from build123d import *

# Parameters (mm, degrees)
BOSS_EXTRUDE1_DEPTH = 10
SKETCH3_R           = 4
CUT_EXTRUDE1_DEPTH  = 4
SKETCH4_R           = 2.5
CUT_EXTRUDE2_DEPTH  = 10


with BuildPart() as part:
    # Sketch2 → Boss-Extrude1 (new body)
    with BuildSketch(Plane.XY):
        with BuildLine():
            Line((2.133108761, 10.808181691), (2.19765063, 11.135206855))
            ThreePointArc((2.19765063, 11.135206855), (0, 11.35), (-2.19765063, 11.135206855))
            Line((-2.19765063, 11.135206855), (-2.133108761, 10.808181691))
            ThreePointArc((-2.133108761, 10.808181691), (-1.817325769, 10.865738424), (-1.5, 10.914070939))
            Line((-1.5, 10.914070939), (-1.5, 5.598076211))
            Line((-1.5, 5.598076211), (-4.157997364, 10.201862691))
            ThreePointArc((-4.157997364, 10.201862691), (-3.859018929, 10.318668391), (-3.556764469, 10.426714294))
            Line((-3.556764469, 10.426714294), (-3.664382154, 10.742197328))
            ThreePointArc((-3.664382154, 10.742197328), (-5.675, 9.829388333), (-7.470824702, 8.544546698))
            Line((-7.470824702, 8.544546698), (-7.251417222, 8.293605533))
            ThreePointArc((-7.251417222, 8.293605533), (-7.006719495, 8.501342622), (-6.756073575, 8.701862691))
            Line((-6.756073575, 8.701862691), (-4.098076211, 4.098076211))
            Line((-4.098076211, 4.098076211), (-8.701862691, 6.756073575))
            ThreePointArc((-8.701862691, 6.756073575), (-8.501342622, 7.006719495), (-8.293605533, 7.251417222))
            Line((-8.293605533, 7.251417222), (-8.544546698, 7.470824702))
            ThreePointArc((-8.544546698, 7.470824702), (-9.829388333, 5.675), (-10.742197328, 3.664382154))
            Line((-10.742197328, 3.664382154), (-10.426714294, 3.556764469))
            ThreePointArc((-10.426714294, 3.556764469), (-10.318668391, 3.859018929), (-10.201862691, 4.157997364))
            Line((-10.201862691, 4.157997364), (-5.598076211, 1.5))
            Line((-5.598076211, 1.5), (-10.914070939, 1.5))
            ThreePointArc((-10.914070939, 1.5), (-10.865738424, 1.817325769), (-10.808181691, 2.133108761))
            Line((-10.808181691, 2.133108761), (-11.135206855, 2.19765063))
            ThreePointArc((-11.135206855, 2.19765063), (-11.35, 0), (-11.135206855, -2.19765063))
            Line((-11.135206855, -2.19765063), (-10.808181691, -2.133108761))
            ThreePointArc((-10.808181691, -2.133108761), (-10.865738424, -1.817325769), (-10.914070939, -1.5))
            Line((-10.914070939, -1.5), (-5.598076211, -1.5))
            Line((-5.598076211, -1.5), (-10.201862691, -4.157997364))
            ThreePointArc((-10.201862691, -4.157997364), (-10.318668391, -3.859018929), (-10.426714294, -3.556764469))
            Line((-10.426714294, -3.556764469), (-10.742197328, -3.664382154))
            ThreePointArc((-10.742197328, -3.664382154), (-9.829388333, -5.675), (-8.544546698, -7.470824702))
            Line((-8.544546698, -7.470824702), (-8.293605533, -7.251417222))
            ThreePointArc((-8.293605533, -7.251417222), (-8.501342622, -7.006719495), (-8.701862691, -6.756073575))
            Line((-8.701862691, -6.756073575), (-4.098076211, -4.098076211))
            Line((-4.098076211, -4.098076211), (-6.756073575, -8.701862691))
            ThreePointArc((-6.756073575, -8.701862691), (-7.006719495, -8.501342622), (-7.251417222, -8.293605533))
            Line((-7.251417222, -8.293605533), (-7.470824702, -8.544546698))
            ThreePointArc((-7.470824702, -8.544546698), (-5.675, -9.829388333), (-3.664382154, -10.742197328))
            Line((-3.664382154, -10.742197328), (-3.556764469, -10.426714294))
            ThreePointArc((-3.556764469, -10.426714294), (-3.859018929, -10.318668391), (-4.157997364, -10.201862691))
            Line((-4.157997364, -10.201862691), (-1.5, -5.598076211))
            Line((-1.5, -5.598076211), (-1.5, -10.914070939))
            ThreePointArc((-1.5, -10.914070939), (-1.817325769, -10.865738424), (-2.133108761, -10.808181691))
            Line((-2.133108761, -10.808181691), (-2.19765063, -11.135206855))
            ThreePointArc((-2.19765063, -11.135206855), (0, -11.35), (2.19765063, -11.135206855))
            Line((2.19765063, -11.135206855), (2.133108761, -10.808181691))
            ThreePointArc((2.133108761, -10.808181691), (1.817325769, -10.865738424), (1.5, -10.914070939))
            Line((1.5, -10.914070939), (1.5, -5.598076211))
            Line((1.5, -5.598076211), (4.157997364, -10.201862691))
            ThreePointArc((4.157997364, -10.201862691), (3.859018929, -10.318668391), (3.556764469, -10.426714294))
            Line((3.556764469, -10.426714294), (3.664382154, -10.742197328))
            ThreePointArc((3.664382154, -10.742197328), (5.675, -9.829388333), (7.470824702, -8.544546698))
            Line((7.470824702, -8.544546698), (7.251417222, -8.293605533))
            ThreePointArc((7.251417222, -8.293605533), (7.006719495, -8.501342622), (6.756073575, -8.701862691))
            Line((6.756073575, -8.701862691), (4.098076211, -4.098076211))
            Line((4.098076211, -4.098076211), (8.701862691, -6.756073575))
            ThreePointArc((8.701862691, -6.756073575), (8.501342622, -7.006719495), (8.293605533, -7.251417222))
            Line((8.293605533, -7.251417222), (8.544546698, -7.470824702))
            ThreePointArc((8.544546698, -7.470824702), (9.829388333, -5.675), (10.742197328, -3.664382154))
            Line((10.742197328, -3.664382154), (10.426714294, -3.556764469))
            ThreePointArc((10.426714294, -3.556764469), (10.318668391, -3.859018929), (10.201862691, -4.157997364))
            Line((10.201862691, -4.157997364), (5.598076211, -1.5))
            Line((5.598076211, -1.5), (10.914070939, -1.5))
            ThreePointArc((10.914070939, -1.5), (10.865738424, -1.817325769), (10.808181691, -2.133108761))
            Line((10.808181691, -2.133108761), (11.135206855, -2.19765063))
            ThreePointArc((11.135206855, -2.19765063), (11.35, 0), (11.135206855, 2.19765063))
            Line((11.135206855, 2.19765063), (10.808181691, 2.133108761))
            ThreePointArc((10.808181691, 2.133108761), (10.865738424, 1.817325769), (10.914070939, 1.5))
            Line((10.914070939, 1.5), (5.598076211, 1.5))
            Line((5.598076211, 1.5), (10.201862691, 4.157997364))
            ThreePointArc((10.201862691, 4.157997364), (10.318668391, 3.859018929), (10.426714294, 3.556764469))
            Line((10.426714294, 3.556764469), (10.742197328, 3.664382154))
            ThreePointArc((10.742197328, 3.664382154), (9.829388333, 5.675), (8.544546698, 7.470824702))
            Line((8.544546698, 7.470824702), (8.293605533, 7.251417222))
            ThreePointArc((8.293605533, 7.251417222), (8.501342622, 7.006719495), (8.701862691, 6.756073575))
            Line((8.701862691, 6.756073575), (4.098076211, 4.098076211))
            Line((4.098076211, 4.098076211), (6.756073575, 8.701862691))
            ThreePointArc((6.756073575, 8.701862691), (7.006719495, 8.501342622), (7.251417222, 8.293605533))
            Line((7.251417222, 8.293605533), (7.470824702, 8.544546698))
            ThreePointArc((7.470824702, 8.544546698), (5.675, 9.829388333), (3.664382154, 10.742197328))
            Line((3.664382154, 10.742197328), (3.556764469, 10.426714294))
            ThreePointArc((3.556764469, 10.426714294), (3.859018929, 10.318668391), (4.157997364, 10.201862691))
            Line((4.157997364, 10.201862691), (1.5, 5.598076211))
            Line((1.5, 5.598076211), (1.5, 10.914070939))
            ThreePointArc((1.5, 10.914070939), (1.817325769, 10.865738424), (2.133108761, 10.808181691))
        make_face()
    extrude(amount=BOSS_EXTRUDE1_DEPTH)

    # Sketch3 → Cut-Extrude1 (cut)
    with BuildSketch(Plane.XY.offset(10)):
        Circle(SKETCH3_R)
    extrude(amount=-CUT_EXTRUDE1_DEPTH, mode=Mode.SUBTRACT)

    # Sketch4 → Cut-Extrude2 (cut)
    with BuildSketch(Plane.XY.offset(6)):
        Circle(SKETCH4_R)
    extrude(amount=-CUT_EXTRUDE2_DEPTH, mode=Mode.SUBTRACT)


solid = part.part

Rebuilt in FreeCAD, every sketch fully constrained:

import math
import FreeCAD as App
import Part
import Sketcher

V = App.Vector
Q = App.Units.Quantity

doc = App.newDocument("Part")
params = doc.addObject("Spreadsheet::Sheet", "Params")
for row, (alias, value) in enumerate([
    ("sketch1_radius", "11.35 mm"),
    ("pad1_length", "10 mm"),
    ("sketch2_diameter", "8 mm"),
    ("pocket1_length", "4 mm"),
    ("sketch3_diameter", "5 mm"),
    ("pocket2_length", "10 mm"),
], start=1):
    params.set(f"A{row}", alias)
    params.set(f"B{row}", "=" + value)
    params.setAlias(f"B{row}", alias)

body = doc.addObject("PartDesign::Body", "Body")

# Sketch on XY plane
sketch1 = doc.addObject("Sketcher::SketchObject", "Sketch")
body.addObject(sketch1)
sketch1.AttachmentSupport = (doc.XY_Plane, [""])
sketch1.MapMode = "FlatFace"
sketch1.addGeometry(Part.LineSegment(V(2.133109, 10.808182, 0), V(2.197651, 11.135207, 0)), False)
sketch1.addGeometry(Part.ArcOfCircle(Part.Circle(V(0, 0, 0), V(0, 0, 1), 11.35), math.radians(78.835553), math.radians(101.164447)), False)
sketch1.addGeometry(Part.LineSegment(V(-2.197651, 11.135207, 0), V(-2.133109, 10.808182, 0)), False)
sketch1.addGeometry(Part.ArcOfCircle(Part.Circle(V(0, -0.000001, 0), V(0, 0, 1), 11.016667), math.radians(97.825549), math.radians(101.164446)), False)
sketch1.addGeometry(Part.LineSegment(V(-1.5, 10.914071, 0), V(-1.5, 5.598076, 0)), False)
sketch1.addGeometry(Part.LineSegment(V(-1.5, 5.598076, 0), V(-4.157997, 10.201863, 0)), False)
sketch1.addGeometry(Part.ArcOfCircle(Part.Circle(V(0, 0.000001, 0), V(0, 0, 1), 11.016666), math.radians(108.835553), math.radians(112.174452)), False)
sketch1.addGeometry(Part.LineSegment(V(-3.556764, 10.426714, 0), V(-3.664382, 10.742197, 0)), False)
sketch1.addGeometry(Part.ArcOfCircle(Part.Circle(V(0, 0, 0), V(0, 0, 1), 11.35), math.radians(108.835554), math.radians(131.164447)), False)
sketch1.addGeometry(Part.LineSegment(V(-7.470825, 8.544547, 0), V(-7.251417, 8.293606, 0)), False)
sketch1.addGeometry(Part.ArcOfCircle(Part.Circle(V(0, 0, 0), V(0, 0, 1), 11.016666), math.radians(127.825548), math.radians(131.164446)), False)
sketch1.addGeometry(Part.LineSegment(V(-6.756074, 8.701863, 0), V(-4.098076, 4.098076, 0)), False)
sketch1.addGeometry(Part.LineSegment(V(-4.098076, 4.098076, 0), V(-8.701863, 6.756074, 0)), False)
sketch1.addGeometry(Part.ArcOfCircle(Part.Circle(V(0, 0, 0), V(0, 0, 1), 11.016666), math.radians(138.835554), math.radians(142.174452)), False)
sketch1.addGeometry(Part.LineSegment(V(-8.293606, 7.251417, 0), V(-8.544547, 7.470825, 0)), False)
sketch1.addGeometry(Part.ArcOfCircle(Part.Circle(V(0, 0, 0), V(0, 0, 1), 11.35), math.radians(138.835553), math.radians(161.164446)), False)
sketch1.addGeometry(Part.LineSegment(V(-10.742197, 3.664382, 0), V(-10.426714, 3.556764, 0)), False)
sketch1.addGeometry(Part.ArcOfCircle(Part.Circle(V(-0.000001, 0, 0), V(0, 0, 1), 11.016666), math.radians(157.825548), math.radians(161.164447)), False)
sketch1.addGeometry(Part.LineSegment(V(-10.201863, 4.157997, 0), V(-5.598076, 1.5, 0)), False)
sketch1.addGeometry(Part.LineSegment(V(-5.598076, 1.5, 0), V(-10.914071, 1.5, 0)), False)
sketch1.addGeometry(Part.ArcOfCircle(Part.Circle(V(0.000001, 0, 0), V(0, 0, 1), 11.016667), math.radians(168.835554), math.radians(172.174451)), False)
sketch1.addGeometry(Part.LineSegment(V(-10.808182, 2.133109, 0), V(-11.135207, 2.197651, 0)), False)
sketch1.addGeometry(Part.ArcOfCircle(Part.Circle(V(0, 0, 0), V(0, 0, 1), 11.35), math.radians(168.835553), math.radians(191.164447)), False)
sketch1.addGeometry(Part.LineSegment(V(-11.135207, -2.197651, 0), V(-10.808182, -2.133109, 0)), False)
sketch1.addGeometry(Part.ArcOfCircle(Part.Circle(V(0.000001, 0, 0), V(0, 0, 1), 11.016667), math.radians(-172.174451), math.radians(-168.835554)), False)
sketch1.addGeometry(Part.LineSegment(V(-10.914071, -1.5, 0), V(-5.598076, -1.5, 0)), False)
sketch1.addGeometry(Part.LineSegment(V(-5.598076, -1.5, 0), V(-10.201863, -4.157997, 0)), False)
sketch1.addGeometry(Part.ArcOfCircle(Part.Circle(V(-0.000001, 0, 0), V(0, 0, 1), 11.016666), math.radians(-161.164447), math.radians(-157.825548)), False)
sketch1.addGeometry(Part.LineSegment(V(-10.426714, -3.556764, 0), V(-10.742197, -3.664382, 0)), False)
sketch1.addGeometry(Part.ArcOfCircle(Part.Circle(V(0, 0, 0), V(0, 0, 1), 11.35), math.radians(-161.164446), math.radians(-138.835553)), False)
sketch1.addGeometry(Part.LineSegment(V(-8.544547, -7.470825, 0), V(-8.293606, -7.251417, 0)), False)
sketch1.addGeometry(Part.ArcOfCircle(Part.Circle(V(0, 0, 0), V(0, 0, 1), 11.016666), math.radians(-142.174452), math.radians(-138.835554)), False)
sketch1.addGeometry(Part.LineSegment(V(-8.701863, -6.756074, 0), V(-4.098076, -4.098076, 0)), False)
sketch1.addGeometry(Part.LineSegment(V(-4.098076, -4.098076, 0), V(-6.756074, -8.701863, 0)), False)
sketch1.addGeometry(Part.ArcOfCircle(Part.Circle(V(0, 0, 0), V(0, 0, 1), 11.016666), math.radians(-131.164446), math.radians(-127.825548)), False)
sketch1.addGeometry(Part.LineSegment(V(-7.251417, -8.293606, 0), V(-7.470825, -8.544547, 0)), False)
sketch1.addGeometry(Part.ArcOfCircle(Part.Circle(V(0, 0, 0), V(0, 0, 1), 11.35), math.radians(-131.164447), math.radians(-108.835554)), False)
sketch1.addGeometry(Part.LineSegment(V(-3.664382, -10.742197, 0), V(-3.556764, -10.426714, 0)), False)
sketch1.addGeometry(Part.ArcOfCircle(Part.Circle(V(0, -0.000001, 0), V(0, 0, 1), 11.016666), math.radians(-112.174452), math.radians(-108.835553)), False)
sketch1.addGeometry(Part.LineSegment(V(-4.157997, -10.201863, 0), V(-1.5, -5.598076, 0)), False)
sketch1.addGeometry(Part.LineSegment(V(-1.5, -5.598076, 0), V(-1.5, -10.914071, 0)), False)
sketch1.addGeometry(Part.ArcOfCircle(Part.Circle(V(0, 0.000001, 0), V(0, 0, 1), 11.016667), math.radians(-101.164446), math.radians(-97.825549)), False)
sketch1.addGeometry(Part.LineSegment(V(-2.133109, -10.808182, 0), V(-2.197651, -11.135207, 0)), False)
sketch1.addGeometry(Part.ArcOfCircle(Part.Circle(V(0, 0, 0), V(0, 0, 1), 11.35), math.radians(-101.164447), math.radians(-78.835553)), False)
sketch1.addGeometry(Part.LineSegment(V(2.197651, -11.135207, 0), V(2.133109, -10.808182, 0)), False)
sketch1.addGeometry(Part.ArcOfCircle(Part.Circle(V(0, 0.000001, 0), V(0, 0, 1), 11.016667), math.radians(-82.174451), math.radians(-78.835554)), False)
sketch1.addGeometry(Part.LineSegment(V(1.5, -10.914071, 0), V(1.5, -5.598076, 0)), False)
sketch1.addGeometry(Part.LineSegment(V(1.5, -5.598076, 0), V(4.157997, -10.201863, 0)), False)
sketch1.addGeometry(Part.ArcOfCircle(Part.Circle(V(0, -0.000001, 0), V(0, 0, 1), 11.016666), math.radians(-71.164447), math.radians(-67.825548)), False)
sketch1.addGeometry(Part.LineSegment(V(3.556764, -10.426714, 0), V(3.664382, -10.742197, 0)), False)
sketch1.addGeometry(Part.ArcOfCircle(Part.Circle(V(0, 0, 0), V(0, 0, 1), 11.35), math.radians(-71.164446), math.radians(-48.835553)), False)
sketch1.addGeometry(Part.LineSegment(V(7.470825, -8.544547, 0), V(7.251417, -8.293606, 0)), False)
sketch1.addGeometry(Part.ArcOfCircle(Part.Circle(V(0, 0, 0), V(0, 0, 1), 11.016666), math.radians(-52.174452), math.radians(-48.835554)), False)
sketch1.addGeometry(Part.LineSegment(V(6.756074, -8.701863, 0), V(4.098076, -4.098076, 0)), False)
sketch1.addGeometry(Part.LineSegment(V(4.098076, -4.098076, 0), V(8.701863, -6.756074, 0)), False)
sketch1.addGeometry(Part.ArcOfCircle(Part.Circle(V(0, 0, 0), V(0, 0, 1), 11.016666), math.radians(-41.164446), math.radians(-37.825548)), False)
sketch1.addGeometry(Part.LineSegment(V(8.293606, -7.251417, 0), V(8.544547, -7.470825, 0)), False)
sketch1.addGeometry(Part.ArcOfCircle(Part.Circle(V(0, 0, 0), V(0, 0, 1), 11.35), math.radians(-41.164447), math.radians(-18.835554)), False)
sketch1.addGeometry(Part.LineSegment(V(10.742197, -3.664382, 0), V(10.426714, -3.556764, 0)), False)
sketch1.addGeometry(Part.ArcOfCircle(Part.Circle(V(0.000001, 0, 0), V(0, 0, 1), 11.016666), math.radians(-22.174452), math.radians(-18.835553)), False)
sketch1.addGeometry(Part.LineSegment(V(10.201863, -4.157997, 0), V(5.598076, -1.5, 0)), False)
sketch1.addGeometry(Part.LineSegment(V(5.598076, -1.5, 0), V(10.914071, -1.5, 0)), False)
sketch1.addGeometry(Part.ArcOfCircle(Part.Circle(V(-0.000001, 0, 0), V(0, 0, 1), 11.016667), math.radians(-11.164446), math.radians(-7.825549)), False)
sketch1.addGeometry(Part.LineSegment(V(10.808182, -2.133109, 0), V(11.135207, -2.197651, 0)), False)
sketch1.addGeometry(Part.ArcOfCircle(Part.Circle(V(0, 0, 0), V(0, 0, 1), 11.35), math.radians(-11.164447), math.radians(11.164447)), False)
sketch1.addGeometry(Part.LineSegment(V(11.135207, 2.197651, 0), V(10.808182, 2.133109, 0)), False)
sketch1.addGeometry(Part.ArcOfCircle(Part.Circle(V(-0.000001, 0, 0), V(0, 0, 1), 11.016667), math.radians(7.825549), math.radians(11.164446)), False)
sketch1.addGeometry(Part.LineSegment(V(10.914071, 1.5, 0), V(5.598076, 1.5, 0)), False)
sketch1.addGeometry(Part.LineSegment(V(5.598076, 1.5, 0), V(10.201863, 4.157997, 0)), False)
sketch1.addGeometry(Part.ArcOfCircle(Part.Circle(V(0.000001, 0, 0), V(0, 0, 1), 11.016666), math.radians(18.835553), math.radians(22.174452)), False)
sketch1.addGeometry(Part.LineSegment(V(10.426714, 3.556764, 0), V(10.742197, 3.664382, 0)), False)
sketch1.addGeometry(Part.ArcOfCircle(Part.Circle(V(0, 0, 0), V(0, 0, 1), 11.35), math.radians(18.835554), math.radians(41.164447)), False)
sketch1.addGeometry(Part.LineSegment(V(8.544547, 7.470825, 0), V(8.293606, 7.251417, 0)), False)
sketch1.addGeometry(Part.ArcOfCircle(Part.Circle(V(0, 0, 0), V(0, 0, 1), 11.016666), math.radians(37.825548), math.radians(41.164446)), False)
sketch1.addGeometry(Part.LineSegment(V(8.701863, 6.756074, 0), V(4.098076, 4.098076, 0)), False)
sketch1.addGeometry(Part.LineSegment(V(4.098076, 4.098076, 0), V(6.756074, 8.701863, 0)), False)
sketch1.addGeometry(Part.ArcOfCircle(Part.Circle(V(0, 0, 0), V(0, 0, 1), 11.016666), math.radians(48.835554), math.radians(52.174452)), False)
sketch1.addGeometry(Part.LineSegment(V(7.251417, 8.293606, 0), V(7.470825, 8.544547, 0)), False)
sketch1.addGeometry(Part.ArcOfCircle(Part.Circle(V(0, 0, 0), V(0, 0, 1), 11.35), math.radians(48.835553), math.radians(71.164446)), False)
sketch1.addGeometry(Part.LineSegment(V(3.664382, 10.742197, 0), V(3.556764, 10.426714, 0)), False)
sketch1.addGeometry(Part.ArcOfCircle(Part.Circle(V(0, 0.000001, 0), V(0, 0, 1), 11.016666), math.radians(67.825548), math.radians(71.164447)), False)
sketch1.addGeometry(Part.LineSegment(V(4.157997, 10.201863, 0), V(1.5, 5.598076, 0)), False)
sketch1.addGeometry(Part.LineSegment(V(1.5, 5.598076, 0), V(1.5, 10.914071, 0)), False)
sketch1.addGeometry(Part.ArcOfCircle(Part.Circle(V(0, -0.000001, 0), V(0, 0, 1), 11.016667), math.radians(78.835554), math.radians(82.174451)), False)
sketch1.addConstraint(Sketcher.Constraint("Coincident", 0, 2, 1, 1))
sketch1.addConstraint(Sketcher.Constraint("Coincident", 1, 2, 2, 1))
sketch1.addConstraint(Sketcher.Constraint("Coincident", 2, 2, 3, 2))
sketch1.addConstraint(Sketcher.Constraint("Coincident", 3, 1, 4, 1))
sketch1.addConstraint(Sketcher.Constraint("Coincident", 4, 2, 5, 1))
sketch1.addConstraint(Sketcher.Constraint("Coincident", 5, 2, 6, 2))
sketch1.addConstraint(Sketcher.Constraint("Coincident", 6, 1, 7, 1))
sketch1.addConstraint(Sketcher.Constraint("Coincident", 7, 2, 8, 1))
sketch1.addConstraint(Sketcher.Constraint("Coincident", 8, 2, 9, 1))
sketch1.addConstraint(Sketcher.Constraint("Coincident", 9, 2, 10, 2))
sketch1.addConstraint(Sketcher.Constraint("Coincident", 10, 1, 11, 1))
sketch1.addConstraint(Sketcher.Constraint("Coincident", 11, 2, 12, 1))
sketch1.addConstraint(Sketcher.Constraint("Coincident", 12, 2, 13, 2))
sketch1.addConstraint(Sketcher.Constraint("Coincident", 13, 1, 14, 1))
sketch1.addConstraint(Sketcher.Constraint("Coincident", 14, 2, 15, 1))
sketch1.addConstraint(Sketcher.Constraint("Coincident", 15, 2, 16, 1))
sketch1.addConstraint(Sketcher.Constraint("Coincident", 16, 2, 17, 2))
sketch1.addConstraint(Sketcher.Constraint("Coincident", 17, 1, 18, 1))
sketch1.addConstraint(Sketcher.Constraint("Coincident", 18, 2, 19, 1))
sketch1.addConstraint(Sketcher.Constraint("Coincident", 19, 2, 20, 2))
sketch1.addConstraint(Sketcher.Constraint("Coincident", 20, 1, 21, 1))
sketch1.addConstraint(Sketcher.Constraint("Coincident", 21, 2, 22, 1))
sketch1.addConstraint(Sketcher.Constraint("Coincident", 22, 2, 23, 1))
sketch1.addConstraint(Sketcher.Constraint("Coincident", 23, 2, 24, 2))
sketch1.addConstraint(Sketcher.Constraint("Coincident", 24, 1, 25, 1))
sketch1.addConstraint(Sketcher.Constraint("Coincident", 25, 2, 26, 1))
sketch1.addConstraint(Sketcher.Constraint("Coincident", 26, 2, 27, 2))
sketch1.addConstraint(Sketcher.Constraint("Coincident", 27, 1, 28, 1))
sketch1.addConstraint(Sketcher.Constraint("Coincident", 28, 2, 29, 1))
sketch1.addConstraint(Sketcher.Constraint("Coincident", 29, 2, 30, 1))
sketch1.addConstraint(Sketcher.Constraint("Coincident", 30, 2, 31, 2))
sketch1.addConstraint(Sketcher.Constraint("Coincident", 31, 1, 32, 1))
sketch1.addConstraint(Sketcher.Constraint("Coincident", 32, 2, 33, 1))
sketch1.addConstraint(Sketcher.Constraint("Coincident", 33, 2, 34, 2))
sketch1.addConstraint(Sketcher.Constraint("Coincident", 34, 1, 35, 1))
sketch1.addConstraint(Sketcher.Constraint("Coincident", 35, 2, 36, 1))
sketch1.addConstraint(Sketcher.Constraint("Coincident", 36, 2, 37, 1))
sketch1.addConstraint(Sketcher.Constraint("Coincident", 37, 2, 38, 2))
sketch1.addConstraint(Sketcher.Constraint("Coincident", 38, 1, 39, 1))
sketch1.addConstraint(Sketcher.Constraint("Coincident", 39, 2, 40, 1))
sketch1.addConstraint(Sketcher.Constraint("Coincident", 40, 2, 41, 2))
sketch1.addConstraint(Sketcher.Constraint("Coincident", 41, 1, 42, 1))
sketch1.addConstraint(Sketcher.Constraint("Coincident", 42, 2, 43, 1))
sketch1.addConstraint(Sketcher.Constraint("Coincident", 43, 2, 44, 1))
sketch1.addConstraint(Sketcher.Constraint("Coincident", 44, 2, 45, 2))
sketch1.addConstraint(Sketcher.Constraint("Coincident", 45, 1, 46, 1))
sketch1.addConstraint(Sketcher.Constraint("Coincident", 46, 2, 47, 1))
sketch1.addConstraint(Sketcher.Constraint("Coincident", 47, 2, 48, 2))
sketch1.addConstraint(Sketcher.Constraint("Coincident", 48, 1, 49, 1))
sketch1.addConstraint(Sketcher.Constraint("Coincident", 49, 2, 50, 1))
sketch1.addConstraint(Sketcher.Constraint("Coincident", 50, 2, 51, 1))
sketch1.addConstraint(Sketcher.Constraint("Coincident", 51, 2, 52, 2))
sketch1.addConstraint(Sketcher.Constraint("Coincident", 52, 1, 53, 1))
sketch1.addConstraint(Sketcher.Constraint("Coincident", 53, 2, 54, 1))
sketch1.addConstraint(Sketcher.Constraint("Coincident", 54, 2, 55, 2))
sketch1.addConstraint(Sketcher.Constraint("Coincident", 55, 1, 56, 1))
sketch1.addConstraint(Sketcher.Constraint("Coincident", 56, 2, 57, 1))
sketch1.addConstraint(Sketcher.Constraint("Coincident", 57, 2, 58, 1))
sketch1.addConstraint(Sketcher.Constraint("Coincident", 58, 2, 59, 2))
sketch1.addConstraint(Sketcher.Constraint("Coincident", 59, 1, 60, 1))
sketch1.addConstraint(Sketcher.Constraint("Coincident", 60, 2, 61, 1))
sketch1.addConstraint(Sketcher.Constraint("Coincident", 61, 2, 62, 2))
sketch1.addConstraint(Sketcher.Constraint("Coincident", 62, 1, 63, 1))
sketch1.addConstraint(Sketcher.Constraint("Coincident", 63, 2, 64, 1))
sketch1.addConstraint(Sketcher.Constraint("Coincident", 64, 2, 65, 1))
sketch1.addConstraint(Sketcher.Constraint("Coincident", 65, 2, 66, 2))
sketch1.addConstraint(Sketcher.Constraint("Coincident", 66, 1, 67, 1))
sketch1.addConstraint(Sketcher.Constraint("Coincident", 67, 2, 68, 1))
sketch1.addConstraint(Sketcher.Constraint("Coincident", 68, 2, 69, 2))
sketch1.addConstraint(Sketcher.Constraint("Coincident", 69, 1, 70, 1))
sketch1.addConstraint(Sketcher.Constraint("Coincident", 70, 2, 71, 1))
sketch1.addConstraint(Sketcher.Constraint("Coincident", 71, 2, 72, 1))
sketch1.addConstraint(Sketcher.Constraint("Coincident", 72, 2, 73, 2))
sketch1.addConstraint(Sketcher.Constraint("Coincident", 73, 1, 74, 1))
sketch1.addConstraint(Sketcher.Constraint("Coincident", 74, 2, 75, 1))
sketch1.addConstraint(Sketcher.Constraint("Coincident", 75, 2, 76, 2))
sketch1.addConstraint(Sketcher.Constraint("Coincident", 76, 1, 77, 1))
sketch1.addConstraint(Sketcher.Constraint("Coincident", 77, 2, 78, 1))
sketch1.addConstraint(Sketcher.Constraint("Coincident", 78, 2, 79, 1))
sketch1.addConstraint(Sketcher.Constraint("Coincident", 79, 2, 80, 2))
sketch1.addConstraint(Sketcher.Constraint("Coincident", 80, 1, 81, 1))
sketch1.addConstraint(Sketcher.Constraint("Coincident", 81, 2, 82, 1))
sketch1.addConstraint(Sketcher.Constraint("Coincident", 82, 2, 83, 2))
sketch1.addConstraint(Sketcher.Constraint("Coincident", 83, 1, 0, 1))
sketch1.addConstraint(Sketcher.Constraint("Vertical", 4))
sketch1.addConstraint(Sketcher.Constraint("Horizontal", 19))
sketch1.addConstraint(Sketcher.Constraint("Horizontal", 25))
sketch1.addConstraint(Sketcher.Constraint("Vertical", 40))
sketch1.addConstraint(Sketcher.Constraint("Vertical", 46))
sketch1.addConstraint(Sketcher.Constraint("Horizontal", 61))
sketch1.addConstraint(Sketcher.Constraint("Horizontal", 67))
sketch1.addConstraint(Sketcher.Constraint("Vertical", 82))
sketch1.addConstraint(Sketcher.Constraint("Coincident", 1, 3, -1, 1))
sketch1.addConstraint(Sketcher.Constraint("Coincident", 3, 3, -1, 1))
sketch1.addConstraint(Sketcher.Constraint("Coincident", 6, 3, -1, 1))
sketch1.addConstraint(Sketcher.Constraint("Coincident", 8, 3, -1, 1))
sketch1.addConstraint(Sketcher.Constraint("Coincident", 10, 3, -1, 1))
sketch1.addConstraint(Sketcher.Constraint("Coincident", 13, 3, -1, 1))
sketch1.addConstraint(Sketcher.Constraint("Coincident", 15, 3, -1, 1))
sketch1.addConstraint(Sketcher.Constraint("Coincident", 17, 3, -1, 1))
sketch1.addConstraint(Sketcher.Constraint("Coincident", 20, 3, -1, 1))
sketch1.addConstraint(Sketcher.Constraint("Coincident", 22, 3, -1, 1))
sketch1.addConstraint(Sketcher.Constraint("Coincident", 24, 3, -1, 1))
sketch1.addConstraint(Sketcher.Constraint("Coincident", 27, 3, -1, 1))
sketch1.addConstraint(Sketcher.Constraint("Coincident", 29, 3, -1, 1))
sketch1.addConstraint(Sketcher.Constraint("Coincident", 31, 3, -1, 1))
sketch1.addConstraint(Sketcher.Constraint("Coincident", 34, 3, -1, 1))
sketch1.addConstraint(Sketcher.Constraint("Coincident", 36, 3, -1, 1))
sketch1.addConstraint(Sketcher.Constraint("Coincident", 38, 3, -1, 1))
sketch1.addConstraint(Sketcher.Constraint("Coincident", 41, 3, -1, 1))
sketch1.addConstraint(Sketcher.Constraint("Coincident", 43, 3, -1, 1))
sketch1.addConstraint(Sketcher.Constraint("Coincident", 45, 3, -1, 1))
sketch1.addConstraint(Sketcher.Constraint("Coincident", 48, 3, -1, 1))
sketch1.addConstraint(Sketcher.Constraint("Coincident", 50, 3, -1, 1))
sketch1.addConstraint(Sketcher.Constraint("Coincident", 52, 3, -1, 1))
sketch1.addConstraint(Sketcher.Constraint("Coincident", 55, 3, -1, 1))
sketch1.addConstraint(Sketcher.Constraint("Coincident", 57, 3, -1, 1))
sketch1.addConstraint(Sketcher.Constraint("Coincident", 59, 3, -1, 1))
sketch1.addConstraint(Sketcher.Constraint("Coincident", 62, 3, -1, 1))
sketch1.addConstraint(Sketcher.Constraint("Coincident", 64, 3, -1, 1))
sketch1.addConstraint(Sketcher.Constraint("Coincident", 66, 3, -1, 1))
sketch1.addConstraint(Sketcher.Constraint("Coincident", 69, 3, -1, 1))
sketch1.addConstraint(Sketcher.Constraint("Coincident", 71, 3, -1, 1))
sketch1.addConstraint(Sketcher.Constraint("Coincident", 73, 3, -1, 1))
sketch1.addConstraint(Sketcher.Constraint("Coincident", 76, 3, -1, 1))
sketch1.addConstraint(Sketcher.Constraint("Coincident", 78, 3, -1, 1))
sketch1.addConstraint(Sketcher.Constraint("Coincident", 80, 3, -1, 1))
sketch1.addConstraint(Sketcher.Constraint("Coincident", 83, 3, -1, 1))
sketch1.addConstraint(Sketcher.Constraint("Equal", 3, 6))
sketch1.addConstraint(Sketcher.Constraint("Equal", 1, 8))
sketch1.addConstraint(Sketcher.Constraint("Equal", 6, 10))
sketch1.addConstraint(Sketcher.Constraint("Equal", 10, 13))
sketch1.addConstraint(Sketcher.Constraint("Equal", 8, 15))
sketch1.addConstraint(Sketcher.Constraint("Equal", 13, 17))
sketch1.addConstraint(Sketcher.Constraint("Equal", 17, 20))
sketch1.addConstraint(Sketcher.Constraint("Equal", 15, 22))
sketch1.addConstraint(Sketcher.Constraint("Equal", 20, 24))
sketch1.addConstraint(Sketcher.Constraint("Equal", 24, 27))
sketch1.addConstraint(Sketcher.Constraint("Equal", 22, 29))
sketch1.addConstraint(Sketcher.Constraint("Equal", 27, 31))
sketch1.addConstraint(Sketcher.Constraint("Equal", 31, 34))
sketch1.addConstraint(Sketcher.Constraint("Equal", 29, 36))
sketch1.addConstraint(Sketcher.Constraint("Equal", 34, 38))
sketch1.addConstraint(Sketcher.Constraint("Equal", 38, 41))
sketch1.addConstraint(Sketcher.Constraint("Equal", 36, 43))
sketch1.addConstraint(Sketcher.Constraint("Equal", 41, 45))
sketch1.addConstraint(Sketcher.Constraint("Equal", 45, 48))
sketch1.addConstraint(Sketcher.Constraint("Equal", 43, 50))
sketch1.addConstraint(Sketcher.Constraint("Equal", 48, 52))
sketch1.addConstraint(Sketcher.Constraint("Equal", 52, 55))
sketch1.addConstraint(Sketcher.Constraint("Equal", 50, 57))
sketch1.addConstraint(Sketcher.Constraint("Equal", 55, 59))
sketch1.addConstraint(Sketcher.Constraint("Equal", 59, 62))
sketch1.addConstraint(Sketcher.Constraint("Equal", 57, 64))
sketch1.addConstraint(Sketcher.Constraint("Equal", 62, 66))
sketch1.addConstraint(Sketcher.Constraint("Equal", 66, 69))
sketch1.addConstraint(Sketcher.Constraint("Equal", 64, 71))
sketch1.addConstraint(Sketcher.Constraint("Equal", 69, 73))
sketch1.addConstraint(Sketcher.Constraint("Equal", 73, 76))
sketch1.addConstraint(Sketcher.Constraint("Equal", 71, 78))
sketch1.addConstraint(Sketcher.Constraint("Equal", 76, 80))
sketch1.addConstraint(Sketcher.Constraint("Equal", 80, 83))
sketch1.addConstraint(Sketcher.Constraint("Symmetric", 4, 2, 46, 2, -1, 1))
sketch1.addConstraint(Sketcher.Constraint("Symmetric", 11, 2, 53, 2, -1, 1))
sketch1.addConstraint(Sketcher.Constraint("Symmetric", 18, 2, 60, 2, -1, 1))
sketch1.addConstraint(Sketcher.Constraint("Symmetric", 25, 2, 67, 2, -1, 1))
sketch1.addConstraint(Sketcher.Constraint("Symmetric", 32, 2, 74, 2, -1, 1))
sketch1.addConstraint(Sketcher.Constraint("Symmetric", 39, 2, 81, 2, -1, 1))
sketch1.addConstraint(Sketcher.Constraint("Symmetric", 39, 2, 46, 2, -2))
sketch1.addConstraint(Sketcher.Constraint("Symmetric", 32, 2, 53, 2, -2))
sketch1.addConstraint(Sketcher.Constraint("Symmetric", 25, 2, 60, 2, -2))
sketch1.addConstraint(Sketcher.Constraint("Parallel", 5, 11))
sketch1.addConstraint(Sketcher.Constraint("Parallel", 12, 18))
sketch1.addConstraint(Sketcher.Constraint("Perpendicular", 0, 21))
sketch1.addConstraint(Sketcher.Constraint("Perpendicular", 2, 23))
sketch1.addConstraint(Sketcher.Constraint("Perpendicular", 11, 26))
sketch1.addConstraint(Sketcher.Constraint("Perpendicular", 7, 28))
sketch1.addConstraint(Sketcher.Constraint("Perpendicular", 9, 30))
sketch1.addConstraint(Sketcher.Constraint("Parallel", 26, 32))
sketch1.addConstraint(Sketcher.Constraint("Perpendicular", 18, 33))
sketch1.addConstraint(Sketcher.Constraint("Perpendicular", 14, 35))
sketch1.addConstraint(Sketcher.Constraint("Perpendicular", 16, 37))
sketch1.addConstraint(Sketcher.Constraint("Parallel", 33, 39))
sketch1.addConstraint(Sketcher.Constraint("Perpendicular", 21, 42))
sketch1.addConstraint(Sketcher.Constraint("Perpendicular", 23, 44))
sketch1.addConstraint(Sketcher.Constraint("Perpendicular", 32, 47))
sketch1.addConstraint(Sketcher.Constraint("Perpendicular", 28, 49))
sketch1.addConstraint(Sketcher.Constraint("Perpendicular", 30, 51))
sketch1.addConstraint(Sketcher.Constraint("Parallel", 47, 53))
sketch1.addConstraint(Sketcher.Constraint("Perpendicular", 39, 54))
sketch1.addConstraint(Sketcher.Constraint("Perpendicular", 35, 56))
sketch1.addConstraint(Sketcher.Constraint("Perpendicular", 37, 58))
sketch1.addConstraint(Sketcher.Constraint("Parallel", 54, 60))
sketch1.addConstraint(Sketcher.Constraint("Perpendicular", 42, 63))
sketch1.addConstraint(Sketcher.Constraint("Perpendicular", 44, 65))
sketch1.addConstraint(Sketcher.Constraint("Perpendicular", 53, 68))
sketch1.addConstraint(Sketcher.Constraint("Perpendicular", 49, 70))
sketch1.addConstraint(Sketcher.Constraint("Perpendicular", 51, 72))
sketch1.addConstraint(Sketcher.Constraint("Parallel", 68, 74))
sketch1.addConstraint(Sketcher.Constraint("Perpendicular", 60, 75))
sketch1.addConstraint(Sketcher.Constraint("Perpendicular", 56, 77))
sketch1.addConstraint(Sketcher.Constraint("Perpendicular", 58, 79))
sketch1.addConstraint(Sketcher.Constraint("Parallel", 75, 81))
sketch1.addConstraint(Sketcher.Constraint("Horizontal", 0, 2, 1, 2))
sketch1.addConstraint(Sketcher.Constraint("Horizontal", 42, 2, 43, 2))
sketch1.addConstraint(Sketcher.Constraint("Horizontal", 41, 1, 44, 2))
sketch1.addConstraint(Sketcher.Constraint("Horizontal", 38, 1, 47, 2))
sketch1.addConstraint(Sketcher.Constraint("Horizontal", 37, 2, 48, 1))
sketch1.addConstraint(Sketcher.Constraint("Horizontal", 36, 2, 49, 2))
sketch1.addConstraint(Sketcher.Constraint("Horizontal", 35, 2, 50, 2))
sketch1.addConstraint(Sketcher.Constraint("Horizontal", 34, 1, 51, 2))
sketch1.addConstraint(Sketcher.Constraint("Horizontal", 30, 2, 55, 1))
sketch1.addConstraint(Sketcher.Constraint("Horizontal", 28, 2, 57, 2))
sketch1.addConstraint(Sketcher.Constraint("Horizontal", 23, 2, 62, 1))
sketch1.addConstraint(Sketcher.Constraint("Horizontal", 21, 2, 64, 2))
sketch1.addConstraint(Sketcher.Constraint("Horizontal", 16, 2, 69, 1))
sketch1.addConstraint(Sketcher.Constraint("Horizontal", 14, 2, 71, 2))
sketch1.addConstraint(Sketcher.Constraint("Horizontal", 9, 2, 76, 1))
sketch1.addConstraint(Sketcher.Constraint("Horizontal", 7, 2, 78, 2))
sketch1.addConstraint(Sketcher.Constraint("Vertical", 21, 2, 22, 2))
sketch1.addConstraint(Sketcher.Constraint("Vertical", 16, 2, 27, 1))
sketch1.addConstraint(Sketcher.Constraint("Vertical", 14, 2, 29, 2))
sketch1.addConstraint(Sketcher.Constraint("Vertical", 9, 2, 34, 1))
sketch1.addConstraint(Sketcher.Constraint("Vertical", 7, 2, 36, 2))
sketch1.addConstraint(Sketcher.Constraint("Vertical", 2, 2, 41, 1))
sketch1.addConstraint(Sketcher.Constraint("Equal", 67, 4))
sketch1.addConstraint(Sketcher.Constraint("Equal", 5, 11))
sketch1.addConstraint(Sketcher.Constraint("Equal", 11, 12))
sketch1.addConstraint(Sketcher.Constraint("Equal", 12, 18))
sketch1.addConstraint(Sketcher.Constraint("Angle", 5, Q("120 deg")))
sketch1.addConstraint(Sketcher.Constraint("Radius", 1, 11.35))
sketch1.addConstraint(Sketcher.Constraint("DistanceX", 3, 1, -1, 1, 1.5))
sketch1.addConstraint(Sketcher.Constraint("Radius", 3, 11.016667))
sketch1.addConstraint(Sketcher.Constraint("DistanceX", 19, 2, 19, 1, 5.315995))
sketch1.addConstraint(Sketcher.Constraint("DistanceX", -1, 1, 0, 2, 2.197651))
sketch1.addConstraint(Sketcher.Constraint("DistanceX", 2, 2, -1, 1, 2.133109))
sketch1.addConstraint(Sketcher.Constraint("DistanceX", 20, 1, -1, 1, 10.808182))
sketch1.addConstraint(Sketcher.Constraint("DistanceX", 6, 1, -1, 1, 3.556764))
sketch1.addConstraint(Sketcher.Constraint("DistanceX", 7, 2, -1, 1, 3.664382))
sketch1.addConstraint(Sketcher.Constraint("DistanceX", 8, 2, -1, 1, 7.470825))
sketch1.addConstraint(Sketcher.Constraint("DistanceX", 9, 2, -1, 1, 7.251417))
sketch1.addConstraint(Sketcher.Constraint("DistanceX", 13, 1, -1, 1, 8.293606))
sketch1.addConstraint(Sketcher.Constraint("DistanceX", 15, 2, -1, 1, 10.742197))
sketch1.setExpression("Constraints[230]", "Params.sketch1_radius")
pad1 = doc.addObject("PartDesign::Pad", "Pad")
body.addObject(pad1)
pad1.Profile = sketch1
pad1.setExpression("Length", "Params.pad1_length")

# Sketch on XY plane
sketch2 = doc.addObject("Sketcher::SketchObject", "Sketch001")
body.addObject(sketch2)
sketch2.AttachmentSupport = (doc.XY_Plane, [""])
sketch2.MapMode = "FlatFace"
sketch2.AttachmentOffset = App.Placement(V(0, 0, 10), App.Rotation())
sketch2.addGeometry(Part.Circle(V(0, 0, 0), V(0, 0, 1), 4), False)
sketch2.addConstraint(Sketcher.Constraint("Coincident", 0, 3, -1, 1))
sketch2.addConstraint(Sketcher.Constraint("Diameter", 0, 8.0))
sketch2.setExpression("Constraints[1]", "Params.sketch2_diameter")
pocket1 = doc.addObject("PartDesign::Pocket", "Pocket")
body.addObject(pocket1)
pocket1.Profile = sketch2
pocket1.setExpression("Length", "Params.pocket1_length")

# Sketch on XY plane
sketch3 = doc.addObject("Sketcher::SketchObject", "Sketch002")
body.addObject(sketch3)
sketch3.AttachmentSupport = (doc.XY_Plane, [""])
sketch3.MapMode = "FlatFace"
sketch3.AttachmentOffset = App.Placement(V(0, 0, 6), App.Rotation())
sketch3.addGeometry(Part.Circle(V(0, 0, 0), V(0, 0, 1), 2.5), False)
sketch3.addConstraint(Sketcher.Constraint("Coincident", 0, 3, -1, 1))
sketch3.addConstraint(Sketcher.Constraint("Diameter", 0, 5.0))
sketch3.setExpression("Constraints[1]", "Params.sketch3_diameter")
pocket2 = doc.addObject("PartDesign::Pocket", "Pocket001")
body.addObject(pocket2)
pocket2.Profile = sketch3
pocket2.setExpression("Length", "Params.pocket2_length")

doc.recompute()
